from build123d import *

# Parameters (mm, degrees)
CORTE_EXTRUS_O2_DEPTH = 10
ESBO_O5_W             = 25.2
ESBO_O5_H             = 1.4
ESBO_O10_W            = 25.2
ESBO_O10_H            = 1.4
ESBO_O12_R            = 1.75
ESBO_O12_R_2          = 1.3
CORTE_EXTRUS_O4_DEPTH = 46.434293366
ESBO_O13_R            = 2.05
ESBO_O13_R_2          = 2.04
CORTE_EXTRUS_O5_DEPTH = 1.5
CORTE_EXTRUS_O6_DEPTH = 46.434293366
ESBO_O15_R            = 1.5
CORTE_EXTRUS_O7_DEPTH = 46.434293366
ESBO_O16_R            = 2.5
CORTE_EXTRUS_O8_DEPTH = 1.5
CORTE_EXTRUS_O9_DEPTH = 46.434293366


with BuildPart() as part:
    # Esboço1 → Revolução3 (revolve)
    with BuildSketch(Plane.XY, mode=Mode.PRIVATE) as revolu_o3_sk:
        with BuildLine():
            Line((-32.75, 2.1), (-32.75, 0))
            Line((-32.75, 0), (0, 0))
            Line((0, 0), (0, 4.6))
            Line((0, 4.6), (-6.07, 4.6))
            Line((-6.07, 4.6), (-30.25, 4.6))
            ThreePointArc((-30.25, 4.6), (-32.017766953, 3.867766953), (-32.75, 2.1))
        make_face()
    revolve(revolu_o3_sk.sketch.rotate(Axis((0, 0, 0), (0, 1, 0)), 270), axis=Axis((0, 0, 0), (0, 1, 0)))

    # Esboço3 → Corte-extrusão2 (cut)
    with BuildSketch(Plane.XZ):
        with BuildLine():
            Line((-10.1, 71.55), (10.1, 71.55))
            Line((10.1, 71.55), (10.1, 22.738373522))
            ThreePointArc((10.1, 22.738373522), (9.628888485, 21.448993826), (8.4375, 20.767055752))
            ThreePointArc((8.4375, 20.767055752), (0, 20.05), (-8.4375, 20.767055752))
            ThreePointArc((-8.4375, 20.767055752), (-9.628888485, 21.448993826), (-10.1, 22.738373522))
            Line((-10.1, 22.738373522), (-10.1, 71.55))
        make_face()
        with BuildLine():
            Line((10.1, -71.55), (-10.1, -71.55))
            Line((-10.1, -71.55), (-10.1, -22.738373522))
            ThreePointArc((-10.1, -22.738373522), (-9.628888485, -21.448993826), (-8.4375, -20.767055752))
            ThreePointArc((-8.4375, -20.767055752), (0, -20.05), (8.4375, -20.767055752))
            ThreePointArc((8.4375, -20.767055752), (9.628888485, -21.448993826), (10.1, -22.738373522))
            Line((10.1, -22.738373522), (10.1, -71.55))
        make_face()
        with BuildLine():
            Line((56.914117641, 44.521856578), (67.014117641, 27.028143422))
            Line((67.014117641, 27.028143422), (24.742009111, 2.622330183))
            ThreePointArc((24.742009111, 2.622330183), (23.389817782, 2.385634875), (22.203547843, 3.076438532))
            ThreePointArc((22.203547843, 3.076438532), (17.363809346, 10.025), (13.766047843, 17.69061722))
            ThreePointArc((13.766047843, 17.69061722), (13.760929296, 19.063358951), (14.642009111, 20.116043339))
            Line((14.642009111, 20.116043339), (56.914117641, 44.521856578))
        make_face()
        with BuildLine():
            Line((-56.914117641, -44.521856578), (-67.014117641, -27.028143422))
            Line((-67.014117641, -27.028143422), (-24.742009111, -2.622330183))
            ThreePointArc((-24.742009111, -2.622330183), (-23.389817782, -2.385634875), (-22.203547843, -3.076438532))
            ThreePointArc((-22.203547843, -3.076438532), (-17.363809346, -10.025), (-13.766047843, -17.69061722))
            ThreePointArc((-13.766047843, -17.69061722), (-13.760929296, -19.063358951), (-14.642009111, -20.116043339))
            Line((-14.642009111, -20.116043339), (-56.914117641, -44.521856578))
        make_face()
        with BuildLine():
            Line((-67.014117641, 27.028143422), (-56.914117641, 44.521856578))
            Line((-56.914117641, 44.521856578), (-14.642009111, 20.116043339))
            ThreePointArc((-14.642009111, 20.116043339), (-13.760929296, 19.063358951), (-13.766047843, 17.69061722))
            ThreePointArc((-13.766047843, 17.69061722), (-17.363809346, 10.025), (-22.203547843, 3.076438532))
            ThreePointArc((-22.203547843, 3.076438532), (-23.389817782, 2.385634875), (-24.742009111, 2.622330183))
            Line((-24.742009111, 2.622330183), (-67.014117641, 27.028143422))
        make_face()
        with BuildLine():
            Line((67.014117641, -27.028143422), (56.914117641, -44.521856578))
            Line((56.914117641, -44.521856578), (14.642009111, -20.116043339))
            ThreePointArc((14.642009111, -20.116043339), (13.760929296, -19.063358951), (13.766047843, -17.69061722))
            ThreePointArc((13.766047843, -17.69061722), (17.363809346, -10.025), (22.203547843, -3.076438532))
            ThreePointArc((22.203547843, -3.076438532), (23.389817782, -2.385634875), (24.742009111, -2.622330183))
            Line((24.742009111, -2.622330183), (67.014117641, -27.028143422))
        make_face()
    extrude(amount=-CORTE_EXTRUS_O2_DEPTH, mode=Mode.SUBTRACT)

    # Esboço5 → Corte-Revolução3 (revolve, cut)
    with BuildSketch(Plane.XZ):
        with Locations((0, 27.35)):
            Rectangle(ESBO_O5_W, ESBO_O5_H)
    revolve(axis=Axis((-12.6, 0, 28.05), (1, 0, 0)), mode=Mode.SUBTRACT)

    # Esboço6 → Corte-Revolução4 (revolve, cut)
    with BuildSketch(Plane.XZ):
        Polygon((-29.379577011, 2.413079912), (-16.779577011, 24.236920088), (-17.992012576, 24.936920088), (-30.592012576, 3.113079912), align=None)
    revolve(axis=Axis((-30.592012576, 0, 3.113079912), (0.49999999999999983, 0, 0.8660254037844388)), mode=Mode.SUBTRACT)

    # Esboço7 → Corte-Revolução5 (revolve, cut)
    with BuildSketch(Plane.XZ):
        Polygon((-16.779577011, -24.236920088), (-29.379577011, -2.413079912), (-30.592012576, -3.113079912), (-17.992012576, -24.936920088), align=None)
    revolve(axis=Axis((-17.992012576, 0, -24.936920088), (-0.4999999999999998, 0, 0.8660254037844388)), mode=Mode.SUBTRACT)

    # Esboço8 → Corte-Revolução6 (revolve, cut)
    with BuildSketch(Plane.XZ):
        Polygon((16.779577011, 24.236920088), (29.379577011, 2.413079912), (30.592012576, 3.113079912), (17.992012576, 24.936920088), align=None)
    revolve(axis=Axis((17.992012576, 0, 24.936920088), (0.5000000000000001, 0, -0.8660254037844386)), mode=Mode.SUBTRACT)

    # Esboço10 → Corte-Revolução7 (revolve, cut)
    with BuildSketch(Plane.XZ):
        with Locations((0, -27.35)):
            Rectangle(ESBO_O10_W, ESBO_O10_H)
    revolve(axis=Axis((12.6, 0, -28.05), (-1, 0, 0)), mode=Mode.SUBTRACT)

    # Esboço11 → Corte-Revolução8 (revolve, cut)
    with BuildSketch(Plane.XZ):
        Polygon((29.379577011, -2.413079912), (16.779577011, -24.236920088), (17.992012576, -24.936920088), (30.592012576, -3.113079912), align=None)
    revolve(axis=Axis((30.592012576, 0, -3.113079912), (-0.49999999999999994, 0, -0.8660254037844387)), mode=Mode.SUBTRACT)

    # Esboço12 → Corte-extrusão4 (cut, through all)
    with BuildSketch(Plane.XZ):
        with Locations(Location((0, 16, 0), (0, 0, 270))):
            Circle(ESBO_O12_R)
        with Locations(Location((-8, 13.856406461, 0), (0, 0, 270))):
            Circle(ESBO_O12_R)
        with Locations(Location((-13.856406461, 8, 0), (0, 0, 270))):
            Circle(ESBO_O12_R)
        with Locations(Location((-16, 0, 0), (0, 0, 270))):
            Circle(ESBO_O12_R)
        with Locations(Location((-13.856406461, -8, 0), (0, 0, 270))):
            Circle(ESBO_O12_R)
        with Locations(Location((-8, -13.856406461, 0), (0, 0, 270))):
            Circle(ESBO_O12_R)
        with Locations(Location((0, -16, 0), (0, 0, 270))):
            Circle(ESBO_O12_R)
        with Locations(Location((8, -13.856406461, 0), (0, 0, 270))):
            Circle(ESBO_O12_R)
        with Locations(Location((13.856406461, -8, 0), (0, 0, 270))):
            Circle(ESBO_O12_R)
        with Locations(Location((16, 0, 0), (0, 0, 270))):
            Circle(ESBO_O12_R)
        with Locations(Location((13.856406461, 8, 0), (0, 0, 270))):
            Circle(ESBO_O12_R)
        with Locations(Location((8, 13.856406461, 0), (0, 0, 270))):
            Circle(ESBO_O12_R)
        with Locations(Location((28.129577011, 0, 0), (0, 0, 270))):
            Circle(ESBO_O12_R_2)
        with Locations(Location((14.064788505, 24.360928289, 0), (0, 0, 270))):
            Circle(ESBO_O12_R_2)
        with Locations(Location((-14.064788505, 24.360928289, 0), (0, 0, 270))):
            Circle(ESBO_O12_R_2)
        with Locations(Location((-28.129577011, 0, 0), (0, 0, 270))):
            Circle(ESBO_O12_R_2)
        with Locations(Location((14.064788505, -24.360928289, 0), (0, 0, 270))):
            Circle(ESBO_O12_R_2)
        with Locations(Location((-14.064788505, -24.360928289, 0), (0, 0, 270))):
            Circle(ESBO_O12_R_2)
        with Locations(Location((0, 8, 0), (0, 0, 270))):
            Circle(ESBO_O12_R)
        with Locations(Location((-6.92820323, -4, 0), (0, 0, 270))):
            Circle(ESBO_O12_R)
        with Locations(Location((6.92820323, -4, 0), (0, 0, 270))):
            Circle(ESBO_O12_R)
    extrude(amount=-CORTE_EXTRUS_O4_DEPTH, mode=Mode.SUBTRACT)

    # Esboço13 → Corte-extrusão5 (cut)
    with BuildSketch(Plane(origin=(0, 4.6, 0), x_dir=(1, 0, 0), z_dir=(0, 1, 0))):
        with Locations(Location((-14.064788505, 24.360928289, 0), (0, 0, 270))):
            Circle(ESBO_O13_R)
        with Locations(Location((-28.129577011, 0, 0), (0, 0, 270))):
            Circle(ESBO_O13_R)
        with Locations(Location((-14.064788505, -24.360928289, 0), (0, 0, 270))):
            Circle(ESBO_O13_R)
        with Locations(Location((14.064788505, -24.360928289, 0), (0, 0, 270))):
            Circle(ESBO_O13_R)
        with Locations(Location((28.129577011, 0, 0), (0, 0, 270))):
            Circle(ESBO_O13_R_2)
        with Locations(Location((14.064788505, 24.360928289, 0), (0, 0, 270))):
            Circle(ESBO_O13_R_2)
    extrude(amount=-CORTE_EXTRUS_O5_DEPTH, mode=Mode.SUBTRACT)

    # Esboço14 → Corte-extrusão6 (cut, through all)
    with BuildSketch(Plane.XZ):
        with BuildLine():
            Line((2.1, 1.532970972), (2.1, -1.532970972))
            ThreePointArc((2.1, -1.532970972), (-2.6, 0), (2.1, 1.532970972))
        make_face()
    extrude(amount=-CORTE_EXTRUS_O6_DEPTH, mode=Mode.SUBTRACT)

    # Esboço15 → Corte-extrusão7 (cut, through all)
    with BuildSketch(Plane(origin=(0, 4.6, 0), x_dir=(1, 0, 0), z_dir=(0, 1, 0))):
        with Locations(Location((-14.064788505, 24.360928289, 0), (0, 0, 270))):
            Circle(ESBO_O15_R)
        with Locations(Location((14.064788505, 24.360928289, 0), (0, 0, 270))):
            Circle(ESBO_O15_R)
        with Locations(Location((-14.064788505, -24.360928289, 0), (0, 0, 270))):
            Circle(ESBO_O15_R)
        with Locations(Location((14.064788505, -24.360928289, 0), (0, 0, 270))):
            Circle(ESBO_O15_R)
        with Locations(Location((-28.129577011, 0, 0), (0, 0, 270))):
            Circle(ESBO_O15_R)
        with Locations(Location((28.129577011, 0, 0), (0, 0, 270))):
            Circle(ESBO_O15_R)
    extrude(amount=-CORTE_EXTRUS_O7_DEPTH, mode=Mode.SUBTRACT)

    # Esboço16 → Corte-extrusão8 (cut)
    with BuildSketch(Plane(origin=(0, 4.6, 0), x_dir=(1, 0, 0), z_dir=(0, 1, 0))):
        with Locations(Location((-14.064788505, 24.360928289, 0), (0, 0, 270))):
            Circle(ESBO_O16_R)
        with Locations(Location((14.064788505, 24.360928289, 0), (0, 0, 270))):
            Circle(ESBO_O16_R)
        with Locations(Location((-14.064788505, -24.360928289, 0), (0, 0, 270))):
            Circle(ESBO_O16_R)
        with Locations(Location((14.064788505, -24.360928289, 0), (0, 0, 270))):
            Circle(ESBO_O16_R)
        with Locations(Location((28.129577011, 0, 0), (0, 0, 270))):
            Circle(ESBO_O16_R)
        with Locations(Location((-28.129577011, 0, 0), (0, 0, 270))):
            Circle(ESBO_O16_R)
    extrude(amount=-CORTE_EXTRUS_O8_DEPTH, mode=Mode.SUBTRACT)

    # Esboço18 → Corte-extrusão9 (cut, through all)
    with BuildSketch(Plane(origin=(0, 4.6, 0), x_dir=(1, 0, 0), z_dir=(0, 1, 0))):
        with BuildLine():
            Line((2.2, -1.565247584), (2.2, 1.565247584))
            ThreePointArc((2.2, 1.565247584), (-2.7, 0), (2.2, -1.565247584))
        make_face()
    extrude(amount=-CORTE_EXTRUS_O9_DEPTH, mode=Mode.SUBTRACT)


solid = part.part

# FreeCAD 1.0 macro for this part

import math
import FreeCAD as App
import Part
import Sketcher
from FreeCAD import Vector
Q = App.Units.Quantity

doc = App.newDocument("Part")
body = doc.addObject("PartDesign::Body", "Body")

sketch1 = doc.addObject("Sketcher::SketchObject", "Sketch")
body.addObject(sketch1)
sketch1.AttachmentSupport = (doc.XY_Plane, [""])
sketch1.MapMode = "FlatFace"
sketch1.addGeometry(Part.LineSegment(Vector(-32.75, 2.1, 0), Vector(-32.75, 0, 0)), False)
sketch1.addGeometry(Part.LineSegment(Vector(-32.75, 0, 0), Vector(0, 0, 0)), False)
sketch1.addGeometry(Part.LineSegment(Vector(0, 0, 0), Vector(0, 4.6, 0)), False)
sketch1.addGeometry(Part.LineSegment(Vector(0, 4.6, 0), Vector(-30.25, 4.6, 0)), False)
sketch1.addGeometry(Part.ArcOfCircle(Part.Circle(Vector(-30.25, 2.1, 0), Vector(0, 0, 1), 2.5), math.radians(90), math.radians(180)), False)
sketch1.addConstraint(Sketcher.Constraint("Coincident", 0, 2, 1, 1))
sketch1.addConstraint(Sketcher.Constraint("Coincident", 1, 2, 2, 1))
sketch1.addConstraint(Sketcher.Constraint("Coincident", 2, 2, 3, 1))
sketch1.addConstraint(Sketcher.Constraint("Tangent", 3, 2, 4, 1))
sketch1.addConstraint(Sketcher.Constraint("Tangent", 4, 2, 0, 1))
sketch1.addConstraint(Sketcher.Constraint("Vertical", 0))
sketch1.addConstraint(Sketcher.Constraint("Horizontal", 1))
sketch1.addConstraint(Sketcher.Constraint("Vertical", 2))
sketch1.addConstraint(Sketcher.Constraint("Horizontal", 3))
sketch1.addConstraint(Sketcher.Constraint("Coincident", 1, 2, -1, 1))
sketch1.addConstraint(Sketcher.Constraint("Radius", 4, Q("2.5 mm")))
sketch1.addConstraint(Sketcher.Constraint("DistanceY", 0, 2, 0, 1, Q("2.1 mm")))
sketch1.addConstraint(Sketcher.Constraint("DistanceX", 1, 1, 1, 2, Q("32.75 mm")))
revolution = doc.addObject("PartDesign::Revolution", "Revolution")
body.addObject(revolution)
revolution.Profile = sketch1
revolution.ReferenceAxis = (sketch1, ["V_Axis"])
revolution.Angle = 360

sketch2 = doc.addObject("Sketcher::SketchObject", "Sketch001")
body.addObject(sketch2)
sketch2.AttachmentSupport = (doc.XZ_Plane, [""])
sketch2.MapMode = "FlatFace"
sketch2.addGeometry(Part.LineSegment(Vector(10.1, 71.55, 0), Vector(-10.1, 71.55, 0)), False)
sketch2.addGeometry(Part.LineSegment(Vector(-10.1, 71.55, 0), Vector(-10.1, 22.738374, 0)), False)
sketch2.addGeometry(Part.ArcOfCircle(Part.Circle(Vector(-8.1, 22.738374, 0), Vector(0, 0, 1), 2), math.radians(180), math.radians(260.284851)), False)
sketch2.addGeometry(Part.ArcOfCircle(Part.Circle(Vector(0, 70.05, 0), Vector(0, 0, 1), 50), math.radians(-99.715149), math.radians(-80.284851)), False)
sketch2.addGeometry(Part.ArcOfCircle(Part.Circle(Vector(8.1, 22.738374, 0), Vector(0, 0, 1), 2), math.radians(-80.284851), math.radians(0)), False)
sketch2.addGeometry(Part.LineSegment(Vector(10.1, 22.738374, 0), Vector(10.1, 71.55, 0)), False)
sketch2.addGeometry(Part.LineSegment(Vector(-10.1, -71.55, 0), Vector(10.1, -71.55, 0)), False)
sketch2.addGeometry(Part.LineSegment(Vector(10.1, -71.55, 0), Vector(10.1, -22.738374, 0)), False)
sketch2.addGeometry(Part.ArcOfCircle(Part.Circle(Vector(8.1, -22.738374, 0), Vector(0, 0, 1), 2), math.radians(0), math.radians(80.284851)), False)
sketch2.addGeometry(Part.ArcOfCircle(Part.Circle(Vector(0, -70.05, 0), Vector(0, 0, 1), 50), math.radians(80.284851), math.radians(99.715149)), False)
sketch2.addGeometry(Part.ArcOfCircle(Part.Circle(Vector(-8.1, -22.738374, 0), Vector(0, 0, 1), 2), math.radians(99.715149), math.radians(180)), False)
sketch2.addGeometry(Part.LineSegment(Vector(-10.1, -22.738374, 0), Vector(-10.1, -71.55, 0)), False)
sketch2.addGeometry(Part.LineSegment(Vector(67.014118, 27.028143, 0), Vector(56.914118, 44.521857, 0)), False)
sketch2.addGeometry(Part.LineSegment(Vector(56.914118, 44.521857, 0), Vector(14.642009, 20.116043, 0)), False)
sketch2.addGeometry(Part.ArcOfCircle(Part.Circle(Vector(15.642009, 18.383993, 0), Vector(0, 0, 1), 2), math.radians(120), math.radians(200.284851)), False)
sketch2.addGeometry(Part.ArcOfCircle(Part.Circle(Vector(60.66508, 35.025, 0), Vector(0, 0, 1), 50), math.radians(-159.715149), math.radians(-140.284851)), False)
sketch2.addGeometry(Part.ArcOfCircle(Part.Circle(Vector(23.742009, 4.354381, 0), Vector(0, 0, 1), 2), math.radians(-140.284851), math.radians(-60)), False)
sketch2.addGeometry(Part.LineSegment(Vector(24.742009, 2.62233, 0), Vector(67.014118, 27.028143, 0)), False)
sketch2.addGeometry(Part.LineSegment(Vector(-67.014118, -27.028143, 0), Vector(-56.914118, -44.521857, 0)), False)
sketch2.addGeometry(Part.LineSegment(Vector(-56.914118, -44.521857, 0), Vector(-14.642009, -20.116043, 0)), False)
sketch2.addGeometry(Part.ArcOfCircle(Part.Circle(Vector(-15.642009, -18.383993, 0), Vector(0, 0, 1), 2), math.radians(-60), math.radians(20.284851)), False)
sketch2.addGeometry(Part.ArcOfCircle(Part.Circle(Vector(-60.66508, -35.025, 0), Vector(0, 0, 1), 50), math.radians(20.284851), math.radians(39.715149)), False)
sketch2.addGeometry(Part.ArcOfCircle(Part.Circle(Vector(-23.742009, -4.354381, 0), Vector(0, 0, 1), 2), math.radians(39.715149), math.radians(120)), False)
sketch2.addGeometry(Part.LineSegment(Vector(-24.742009, -2.62233, 0), Vector(-67.014118, -27.028143, 0)), False)
sketch2.addGeometry(Part.LineSegment(Vector(-56.914118, 44.521857, 0), Vector(-67.014118, 27.028143, 0)), False)
sketch2.addGeometry(Part.LineSegment(Vector(-67.014118, 27.028143, 0), Vector(-24.742009, 2.62233, 0)), False)
sketch2.addGeometry(Part.ArcOfCircle(Part.Circle(Vector(-23.742009, 4.354381, 0), Vector(0, 0, 1), 2), math.radians(-120), math.radians(-39.715149)), False)
sketch2.addGeometry(Part.ArcOfCircle(Part.Circle(Vector(-60.66508, 35.025, 0), Vector(0, 0, 1), 50), math.radians(-39.715149), math.radians(-20.284851)), False)
sketch2.addGeometry(Part.ArcOfCircle(Part.Circle(Vector(-15.642009, 18.383993, 0), Vector(0, 0, 1), 2), math.radians(-20.284851), math.radians(60)), False)
sketch2.addGeometry(Part.LineSegment(Vector(-14.642009, 20.116043, 0), Vector(-56.914118, 44.521857, 0)), False)
sketch2.addGeometry(Part.LineSegment(Vector(56.914118, -44.521857, 0), Vector(67.014118, -27.028143, 0)), False)
sketch2.addGeometry(Part.LineSegment(Vector(67.014118, -27.028143, 0), Vector(24.742009, -2.62233, 0)), False)
sketch2.addGeometry(Part.ArcOfCircle(Part.Circle(Vector(23.742009, -4.354381, 0), Vector(0, 0, 1), 2), math.radians(60), math.radians(140.284851)), False)
sketch2.addGeometry(Part.ArcOfCircle(Part.Circle(Vector(60.66508, -35.025, 0), Vector(0, 0, 1), 50), math.radians(140.284851), math.radians(159.715149)), False)
sketch2.addGeometry(Part.ArcOfCircle(Part.Circle(Vector(15.642009, -18.383993, 0), Vector(0, 0, 1), 2), math.radians(159.715149), math.radians(240)), False)
sketch2.addGeometry(Part.LineSegment(Vector(14.642009, -20.116043, 0), Vector(56.914118, -44.521857, 0)), False)
sketch2.addConstraint(Sketcher.Constraint("Coincident", 0, 2, 1, 1))
sketch2.addConstraint(Sketcher.Constraint("Tangent", 1, 2, 2, 1))
sketch2.addConstraint(Sketcher.Constraint("Tangent", 2, 2, 3, 1))
sketch2.addConstraint(Sketcher.Constraint("Tangent", 3, 2, 4, 1))
sketch2.addConstraint(Sketcher.Constraint("Tangent", 4, 2, 5, 1))
sketch2.addConstraint(Sketcher.Constraint("Coincident", 5, 2, 0, 1))
sketch2.addConstraint(Sketcher.Constraint("Coincident", 6, 2, 7, 1))
sketch2.addConstraint(Sketcher.Constraint("Tangent", 7, 2, 8, 1))
sketch2.addConstraint(Sketcher.Constraint("Tangent", 8, 2, 9, 1))
sketch2.addConstraint(Sketcher.Constraint("Tangent", 9, 2, 10, 1))
sketch2.addConstraint(Sketcher.Constraint("Tangent", 10, 2, 11, 1))
sketch2.addConstraint(Sketcher.Constraint("Coincident", 11, 2, 6, 1))
sketch2.addConstraint(Sketcher.Constraint("Coincident", 12, 2, 13, 1))
sketch2.addConstraint(Sketcher.Constraint("Tangent", 13, 2, 14, 1))
sketch2.addConstraint(Sketcher.Constraint("Tangent", 14, 2, 15, 1))
sketch2.addConstraint(Sketcher.Constraint("Tangent", 15, 2, 16, 1))
sketch2.addConstraint(Sketcher.Constraint("Tangent", 16, 2, 17, 1))
sketch2.addConstraint(Sketcher.Constraint("Coincident", 17, 2, 12, 1))
sketch2.addConstraint(Sketcher.Constraint("Coincident", 18, 2, 19, 1))
sketch2.addConstraint(Sketcher.Constraint("Tangent", 19, 2, 20, 1))
sketch2.addConstraint(Sketcher.Constraint("Tangent", 20, 2, 21, 1))
sketch2.addConstraint(Sketcher.Constraint("Tangent", 21, 2, 22, 1))
sketch2.addConstraint(Sketcher.Constraint("Tangent", 22, 2, 23, 1))
sketch2.addConstraint(Sketcher.Constraint("Coincident", 23, 2, 18, 1))
sketch2.addConstraint(Sketcher.Constraint("Coincident", 24, 2, 25, 1))
sketch2.addConstraint(Sketcher.Constraint("Tangent", 25, 2, 26, 1))
sketch2.addConstraint(Sketcher.Constraint("Tangent", 26, 2, 27, 1))
sketch2.addConstraint(Sketcher.Constraint("Tangent", 27, 2, 28, 1))
sketch2.addConstraint(Sketcher.Constraint("Tangent", 28, 2, 29, 1))
sketch2.addConstraint(Sketcher.Constraint("Coincident", 29, 2, 24, 1))
sketch2.addConstraint(Sketcher.Constraint("Coincident", 30, 2, 31, 1))
sketch2.addConstraint(Sketcher.Constraint("Tangent", 31, 2, 32, 1))
sketch2.addConstraint(Sketcher.Constraint("Tangent", 32, 2, 33, 1))
sketch2.addConstraint(Sketcher.Constraint("Tangent", 33, 2, 34, 1))
sketch2.addConstraint(Sketcher.Constraint("Tangent", 34, 2, 35, 1))
sketch2.addConstraint(Sketcher.Constraint("Coincident", 35, 2, 30, 1))
sketch2.addConstraint(Sketcher.Constraint("Horizontal", 0))
sketch2.addConstraint(Sketcher.Constraint("Vertical", 1))
sketch2.addConstraint(Sketcher.Constraint("Vertical", 5))
sketch2.addConstraint(Sketcher.Constraint("Horizontal", 6))
sketch2.addConstraint(Sketcher.Constraint("Vertical", 7))
sketch2.addConstraint(Sketcher.Constraint("Vertical", 11))
sketch2.addConstraint(Sketcher.Constraint("Equal", 2, 4))
sketch2.addConstraint(Sketcher.Constraint("Equal", 4, 8))
sketch2.addConstraint(Sketcher.Constraint("Equal", 3, 9))
sketch2.addConstraint(Sketcher.Constraint("Equal", 8, 10))
sketch2.addConstraint(Sketcher.Constraint("Equal", 10, 14))
sketch2.addConstraint(Sketcher.Constraint("Equal", 9, 15))
sketch2.addConstraint(Sketcher.Constraint("Equal", 14, 16))
sketch2.addConstraint(Sketcher.Constraint("Equal", 16, 20))
sketch2.addConstraint(Sketcher.Constraint("Equal", 15, 21))
sketch2.addConstraint(Sketcher.Constraint("Equal", 20, 22))
sketch2.addConstraint(Sketcher.Constraint("Equal", 22, 26))
sketch2.addConstraint(Sketcher.Constraint("Equal", 21, 27))
sketch2.addConstraint(Sketcher.Constraint("Equal", 26, 28))
sketch2.addConstraint(Sketcher.Constraint("Equal", 28, 32))
sketch2.addConstraint(Sketcher.Constraint("Equal", 27, 33))
sketch2.addConstraint(Sketcher.Constraint("Equal", 32, 34))
sketch2.addConstraint(Sketcher.Constraint("Symmetric", 2, 3, 8, 3, -1, 1))
sketch2.addConstraint(Sketcher.Constraint("Symmetric", 4, 3, 10, 3, -1, 1))
sketch2.addConstraint(Sketcher.Constraint("Symmetric", 14, 3, 20, 3, -1, 1))
sketch2.addConstraint(Sketcher.Constraint("Symmetric", 16, 3, 22, 3, -1, 1))
sketch2.addConstraint(Sketcher.Constraint("Symmetric", 26, 3, 32, 3, -1, 1))
sketch2.addConstraint(Sketcher.Constraint("Symmetric", 28, 3, 34, 3, -1, 1))
sketch2.addConstraint(Sketcher.Constraint("Symmetric", 12, 2, 18, 2, -1, 1))
sketch2.addConstraint(Sketcher.Constraint("Symmetric", 17, 2, 23, 2, -1, 1))
sketch2.addConstraint(Sketcher.Constraint("Symmetric", 24, 2, 30, 2, -1, 1))
sketch2.addConstraint(Sketcher.Constraint("Symmetric", 29, 2, 35, 2, -1, 1))
sketch2.addConstraint(Sketcher.Constraint("Symmetric", 2, 3, 4, 3, -2))
sketch2.addConstraint(Sketcher.Constraint("Symmetric", 16, 3, 26, 3, -2))
sketch2.addConstraint(Sketcher.Constraint("Symmetric", 14, 3, 28, 3, -2))
sketch2.addConstraint(Sketcher.Constraint("Symmetric", 17, 2, 24, 2, -2))
sketch2.addConstraint(Sketcher.Constraint("Symmetric", 12, 2, 29, 2, -2))
sketch2.addConstraint(Sketcher.Constraint("Perpendicular", 12, 13))
sketch2.addConstraint(Sketcher.Constraint("Parallel", 13, 17))
sketch2.addConstraint(Sketcher.Constraint("Equal", 5, 7))
sketch2.addConstraint(Sketcher.Constraint("Equal", 13, 17))
sketch2.addConstraint(Sketcher.Constraint("Radius", 2, Q("2 mm")))
sketch2.addConstraint(Sketcher.Constraint("Radius", 3, Q("50 mm")))
sketch2.addConstraint(Sketcher.Constraint("Angle", 12, Q("120 deg")))
sketch2.addConstraint(Sketcher.Constraint("DistanceX", 0, 2, 0, 1, Q("20.2 mm")))
sketch2.addConstraint(Sketcher.Constraint("Distance", 12, Q("20.2 mm")))
sketch2.addConstraint(Sketcher.Constraint("DistanceY", 9, 3, 3, 3, Q("140.1 mm")))
sketch2.addConstraint(Sketcher.Constraint("DistanceY", 3, 3, 0, 2, Q("1.5 mm")))
sketch2.addConstraint(Sketcher.Constraint("DistanceY", -1, 1, 15, 3, Q("35.025 mm")))
sketch2.addConstraint(Sketcher.Constraint("DistanceX", -1, 1, 14, 3, Q("15.642009 mm")))
sketch2.addConstraint(Sketcher.Constraint("DistanceX", 12, 2, 15, 3, Q("3.750962 mm")))
pocket1 = doc.addObject("PartDesign::Pocket", "Pocket")
body.addObject(pocket1)
pocket1.Profile = sketch2
pocket1.Length = 10

sketch3 = doc.addObject("Sketcher::SketchObject", "Sketch002")
body.addObject(sketch3)
sketch3.AttachmentSupport = (doc.XZ_Plane, [""])
sketch3.MapMode = "FlatFace"
sketch3.addGeometry(Part.LineSegment(Vector(-12.6, 28.05, 0), Vector(-12.6, 26.65, 0)), False)
sketch3.addGeometry(Part.LineSegment(Vector(-12.6, 26.65, 0), Vector(12.6, 26.65, 0)), False)
sketch3.addGeometry(Part.LineSegment(Vector(12.6, 26.65, 0), Vector(12.6, 28.05, 0)), False)
sketch3.addGeometry(Part.LineSegment(Vector(12.6, 28.05, 0), Vector(-12.6, 28.05, 0)), False)
sketch3.addGeometry(Part.LineSegment(Vector(-12.6, 28.05, 0), Vector(12.6, 28.05, 0)), True)
sketch3.addConstraint(Sketcher.Constraint("Coincident", 0, 2, 1, 1))
sketch3.addConstraint(Sketcher.Constraint("Coincident", 1, 2, 2, 1))
sketch3.addConstraint(Sketcher.Constraint("Coincident", 2, 2, 3, 1))
sketch3.addConstraint(Sketcher.Constraint("Coincident", 3, 2, 0, 1))
sketch3.addConstraint(Sketcher.Constraint("Vertical", 0))
sketch3.addConstraint(Sketcher.Constraint("Horizontal", 1))
sketch3.addConstraint(Sketcher.Constraint("Vertical", 2))
sketch3.addConstraint(Sketcher.Constraint("Horizontal", 3))
sketch3.addConstraint(Sketcher.Constraint("Horizontal", 4))
sketch3.addConstraint(Sketcher.Constraint("Coincident", 4, 1, 3, 2))
sketch3.addConstraint(Sketcher.Constraint("Vertical", 1, 2, 4, 2))
sketch3.addConstraint(Sketcher.Constraint("DistanceX", 1, 1, 1, 2, Q("25.2 mm")))
sketch3.addConstraint(Sketcher.Constraint("DistanceY", 0, 2, 0, 1, Q("1.4 mm")))
sketch3.addConstraint(Sketcher.Constraint("DistanceX", 0, 2, -1, 1, Q("12.6 mm")))
sketch3.addConstraint(Sketcher.Constraint("DistanceY", -1, 1, 0, 2, Q("26.65 mm")))
groove = doc.addObject("PartDesign::Groove", "Groove")
body.addObject(groove)
groove.Profile = sketch3
groove.ReferenceAxis = (sketch3, ["Axis0"])
groove.Angle = 360

sketch4 = doc.addObject("Sketcher::SketchObject", "Sketch003")
body.addObject(sketch4)
sketch4.AttachmentSupport = (doc.XZ_Plane, [""])
sketch4.MapMode = "FlatFace"
sketch4.addGeometry(Part.LineSegment(Vector(-29.379577, 2.41308, 0), Vector(-16.779577, 24.23692, 0)), False)
sketch4.addGeometry(Part.LineSegment(Vector(-16.779577, 24.23692, 0), Vector(-17.992013, 24.93692, 0)), False)
sketch4.addGeometry(Part.LineSegment(Vector(-17.992013, 24.93692, 0), Vector(-30.592013, 3.11308, 0)), False)
sketch4.addGeometry(Part.LineSegment(Vector(-30.592013, 3.11308, 0), Vector(-29.379577, 2.41308, 0)), False)
sketch4.addGeometry(Part.LineSegment(Vector(-30.592013, 3.11308, 0), Vector(-17.992013, 24.93692, 0)), True)
sketch4.addConstraint(Sketcher.Constraint("Coincident", 0, 2, 1, 1))
sketch4.addConstraint(Sketcher.Constraint("Coincident", 1, 2, 2, 1))
sketch4.addConstraint(Sketcher.Constraint("Coincident", 2, 2, 3, 1))
sketch4.addConstraint(Sketcher.Constraint("Coincident", 3, 2, 0, 1))
sketch4.addConstraint(Sketcher.Constraint("Coincident", 4, 1, 2, 2))
sketch4.addConstraint(Sketcher.Constraint("Coincident", 4, 2, 1, 2))
sketch4.addConstraint(Sketcher.Constraint("Perpendicular", 0, 1))
sketch4.addConstraint(Sketcher.Constraint("Perpendicular", 1, 2))
sketch4.addConstraint(Sketcher.Constraint("Perpendicular", 2, 3))
sketch4.addConstraint(Sketcher.Constraint("Angle", 0, Q("60 deg")))
sketch4.addConstraint(Sketcher.Constraint("Distance", 0, Q("25.2 mm")))
sketch4.addConstraint(Sketcher.Constraint("Distance", 1, Q("1.4 mm")))
sketch4.addConstraint(Sketcher.Constraint("DistanceY", -1, 1, 0, 2, Q("24.23692 mm")))
sketch4.addConstraint(Sketcher.Constraint("DistanceX", 0, 2, -1, 1, Q("16.779577 mm")))
groove2 = doc.addObject("PartDesign::Groove", "Groove001")
body.addObject(groove2)
groove2.Profile = sketch4
groove2.ReferenceAxis = (sketch4, ["Axis0"])
groove2.Angle = 360

sketch5 = doc.addObject("Sketcher::SketchObject", "Sketch004")
body.addObject(sketch5)
sketch5.AttachmentSupport = (doc.XZ_Plane, [""])
sketch5.MapMode = "FlatFace"
sketch5.addGeometry(Part.LineSegment(Vector(-16.779577, -24.23692, 0), Vector(-29.379577, -2.41308, 0)), False)
sketch5.addGeometry(Part.LineSegment(Vector(-29.379577, -2.41308, 0), Vector(-30.592013, -3.11308, 0)), False)
sketch5.addGeometry(Part.LineSegment(Vector(-30.592013, -3.11308, 0), Vector(-17.992013, -24.93692, 0)), False)
sketch5.addGeometry(Part.LineSegment(Vector(-17.992013, -24.93692, 0), Vector(-16.779577, -24.23692, 0)), False)
sketch5.addGeometry(Part.LineSegment(Vector(-17.992013, -24.93692, 0), Vector(-30.592013, -3.11308, 0)), True)
sketch5.addConstraint(Sketcher.Constraint("Coincident", 0, 2, 1, 1))
sketch5.addConstraint(Sketcher.Constraint("Coincident", 1, 2, 2, 1))
sketch5.addConstraint(Sketcher.Constraint("Coincident", 2, 2, 3, 1))
sketch5.addConstraint(Sketcher.Constraint("Coincident", 3, 2, 0, 1))
sketch5.addConstraint(Sketcher.Constraint("Coincident", 4, 1, 2, 2))
sketch5.addConstraint(Sketcher.Constraint("Coincident", 4, 2, 1, 2))
sketch5.addConstraint(Sketcher.Constraint("Perpendicular", 0, 1))
sketch5.addConstraint(Sketcher.Constraint("Perpendicular", 1, 2))
sketch5.addConstraint(Sketcher.Constraint("Perpendicular", 2, 3))
sketch5.addConstraint(Sketcher.Constraint("Angle", 0, Q("120 deg")))
sketch5.addConstraint(Sketcher.Constraint("Distance", 0, Q("25.2 mm")))
sketch5.addConstraint(Sketcher.Constraint("Distance", 1, Q("1.4 mm")))
sketch5.addConstraint(Sketcher.Constraint("DistanceY", 0, 2, -1, 1, Q("2.41308 mm")))
sketch5.addConstraint(Sketcher.Constraint("DistanceX", 0, 2, -1, 1, Q("29.379577 mm")))
groove3 = doc.addObject("PartDesign::Groove", "Groove002")
body.addObject(groove3)
groove3.Profile = sketch5
groove3.ReferenceAxis = (sketch5, ["Axis0"])
groove3.Angle = 360

sketch6 = doc.addObject("Sketcher::SketchObject", "Sketch005")
body.addObject(sketch6)
sketch6.AttachmentSupport = (doc.XZ_Plane, [""])
sketch6.MapMode = "FlatFace"
sketch6.addGeometry(Part.LineSegment(Vector(16.779577, 24.23692, 0), Vector(29.379577, 2.41308, 0)), False)
sketch6.addGeometry(Part.LineSegment(Vector(29.379577, 2.41308, 0), Vector(30.592013, 3.11308, 0)), False)
sketch6.addGeometry(Part.LineSegment(Vector(30.592013, 3.11308, 0), Vector(17.992013, 24.93692, 0)), False)
sketch6.addGeometry(Part.LineSegment(Vector(17.992013, 24.93692, 0), Vector(16.779577, 24.23692, 0)), False)
sketch6.addGeometry(Part.LineSegment(Vector(17.992013, 24.93692, 0), Vector(30.592013, 3.11308, 0)), True)
sketch6.addConstraint(Sketcher.Constraint("Coincident", 0, 2, 1, 1))
sketch6.addConstraint(Sketcher.Constraint("Coincident", 1, 2, 2, 1))
sketch6.addConstraint(Sketcher.Constraint("Coincident", 2, 2, 3, 1))
sketch6.addConstraint(Sketcher.Constraint("Coincident", 3, 2, 0, 1))
sketch6.addConstraint(Sketcher.Constraint("Coincident", 4, 1, 2, 2))
sketch6.addConstraint(Sketcher.Constraint("Coincident", 4, 2, 1, 2))
sketch6.addConstraint(Sketcher.Constraint("Perpendicular", 0, 1))
sketch6.addConstraint(Sketcher.Constraint("Perpendicular", 1, 2))
sketch6.addConstraint(Sketcher.Constraint("Perpendicular", 2, 3))
sketch6.addConstraint(Sketcher.Constraint("Angle", 0, Q("-60 deg")))
sketch6.addConstraint(Sketcher.Constraint("Distance", 0, Q("25.2 mm")))
sketch6.addConstraint(Sketcher.Constraint("Distance", 1, Q("1.4 mm")))
sketch6.addConstraint(Sketcher.Constraint("DistanceY", -1, 1, 0, 2, Q("2.41308 mm")))
sketch6.addConstraint(Sketcher.Constraint("DistanceX", -1, 1, 0, 2, Q("29.379577 mm")))
groove4 = doc.addObject("PartDesign::Groove", "Groove003")
body.addObject(groove4)
groove4.Profile = sketch6
groove4.ReferenceAxis = (sketch6, ["Axis0"])
groove4.Angle = 360

sketch7 = doc.addObject("Sketcher::SketchObject", "Sketch006")
body.addObject(sketch7)
sketch7.AttachmentSupport = (doc.XZ_Plane, [""])
sketch7.MapMode = "FlatFace"
sketch7.addGeometry(Part.LineSegment(Vector(-12.6, -26.65, 0), Vector(-12.6, -28.05, 0)), False)
sketch7.addGeometry(Part.LineSegment(Vector(-12.6, -28.05, 0), Vector(12.6, -28.05, 0)), False)
sketch7.addGeometry(Part.LineSegment(Vector(12.6, -28.05, 0), Vector(12.6, -26.65, 0)), False)
sketch7.addGeometry(Part.LineSegment(Vector(12.6, -26.65, 0), Vector(-12.6, -26.65, 0)), False)
sketch7.addGeometry(Part.LineSegment(Vector(12.6, -28.05, 0), Vector(-12.6, -28.05, 0)), True)
sketch7.addConstraint(Sketcher.Constraint("Coincident", 0, 2, 1, 1))
sketch7.addConstraint(Sketcher.Constraint("Coincident", 1, 2, 2, 1))
sketch7.addConstraint(Sketcher.Constraint("Coincident", 2, 2, 3, 1))
sketch7.addConstraint(Sketcher.Constraint("Coincident", 3, 2, 0, 1))
sketch7.addConstraint(Sketcher.Constraint("Vertical", 0))
sketch7.addConstraint(Sketcher.Constraint("Horizontal", 1))
sketch7.addConstraint(Sketcher.Constraint("Vertical", 2))
sketch7.addConstraint(Sketcher.Constraint("Horizontal", 3))
sketch7.addConstraint(Sketcher.Constraint("Horizontal", 4))
sketch7.addConstraint(Sketcher.Constraint("Coincident", 4, 1, 1, 2))
sketch7.addConstraint(Sketcher.Constraint("Vertical", 3, 2, 4, 2))
sketch7.addConstraint(Sketcher.Constraint("DistanceX", 1, 1, 1, 2, Q("25.2 mm")))
sketch7.addConstraint(Sketcher.Constraint("DistanceY", 0, 2, 0, 1, Q("1.4 mm")))
sketch7.addConstraint(Sketcher.Constraint("DistanceX", 0, 2, -1, 1, Q("12.6 mm")))
sketch7.addConstraint(Sketcher.Constraint("DistanceY", 0, 2, -1, 1, Q("28.05 mm")))
groove5 = doc.addObject("PartDesign::Groove", "Groove004")
body.addObject(groove5)
groove5.Profile = sketch7
groove5.ReferenceAxis = (sketch7, ["Axis0"])
groove5.Angle = 360

sketch8 = doc.addObject("Sketcher::SketchObject", "Sketch007")
body.addObject(sketch8)
sketch8.AttachmentSupport = (doc.XZ_Plane, [""])
sketch8.MapMode = "FlatFace"
sketch8.addGeometry(Part.LineSegment(Vector(29.379577, -2.41308, 0), Vector(16.779577, -24.23692, 0)), False)
sketch8.addGeometry(Part.LineSegment(Vector(16.779577, -24.23692, 0), Vector(17.992013, -24.93692, 0)), False)
sketch8.addGeometry(Part.LineSegment(Vector(17.992013, -24.93692, 0), Vector(30.592013, -3.11308, 0)), False)
sketch8.addGeometry(Part.LineSegment(Vector(30.592013, -3.11308, 0), Vector(29.379577, -2.41308, 0)), False)
sketch8.addGeometry(Part.LineSegment(Vector(30.592013, -3.11308, 0), Vector(17.992013, -24.93692, 0)), True)
sketch8.addConstraint(Sketcher.Constraint("Coincident", 0, 2, 1, 1))
sketch8.addConstraint(Sketcher.Constraint("Coincident", 1, 2, 2, 1))
sketch8.addConstraint(Sketcher.Constraint("Coincident", 2, 2, 3, 1))
sketch8.addConstraint(Sketcher.Constraint("Coincident", 3, 2, 0, 1))
sketch8.addConstraint(Sketcher.Constraint("Coincident", 4, 1, 2, 2))
sketch8.addConstraint(Sketcher.Constraint("Coincident", 4, 2, 1, 2))
sketch8.addConstraint(Sketcher.Constraint("Perpendicular", 0, 1))
sketch8.addConstraint(Sketcher.Constraint("Perpendicular", 1, 2))
sketch8.addConstraint(Sketcher.Constraint("Perpendicular", 2, 3))
sketch8.addConstraint(Sketcher.Constraint("Angle", 0, Q("-120 deg")))
sketch8.addConstraint(Sketcher.Constraint("Distance", 0, Q("25.2 mm")))
sketch8.addConstraint(Sketcher.Constraint("Distance", 1, Q("1.4 mm")))
sketch8.addConstraint(Sketcher.Constraint("DistanceY", 0, 2, -1, 1, Q("24.23692 mm")))
sketch8.addConstraint(Sketcher.Constraint("DistanceX", -1, 1, 0, 2, Q("16.779577 mm")))
groove6 = doc.addObject("PartDesign::Groove", "Groove005")
body.addObject(groove6)
groove6.Profile = sketch8
groove6.ReferenceAxis = (sketch8, ["Axis0"])
groove6.Angle = 360

sketch9 = doc.addObject("Sketcher::SketchObject", "Sketch008")
body.addObject(sketch9)
sketch9.AttachmentSupport = (doc.XZ_Plane, [""])
sketch9.MapMode = "FlatFace"
sketch9.addGeometry(Part.Circle(Vector(0, 16, 0), Vector(0, 0, 1), 1.75), False)
sketch9.addGeometry(Part.Circle(Vector(-8, 13.856406, 0), Vector(0, 0, 1), 1.75), False)
sketch9.addGeometry(Part.Circle(Vector(-13.856406, 8, 0), Vector(0, 0, 1), 1.75), False)
sketch9.addGeometry(Part.Circle(Vector(-16, 0, 0), Vector(0, 0, 1), 1.75), False)
sketch9.addGeometry(Part.Circle(Vector(-13.856406, -8, 0), Vector(0, 0, 1), 1.75), False)
sketch9.addGeometry(Part.Circle(Vector(-8, -13.856406, 0), Vector(0, 0, 1), 1.75), False)
sketch9.addGeometry(Part.Circle(Vector(0, -16, 0), Vector(0, 0, 1), 1.75), False)
sketch9.addGeometry(Part.Circle(Vector(8, -13.856406, 0), Vector(0, 0, 1), 1.75), False)
sketch9.addGeometry(Part.Circle(Vector(13.856406, -8, 0), Vector(0, 0, 1), 1.75), False)
sketch9.addGeometry(Part.Circle(Vector(16, 0, 0), Vector(0, 0, 1), 1.75), False)
sketch9.addGeometry(Part.Circle(Vector(13.856406, 8, 0), Vector(0, 0, 1), 1.75), False)
sketch9.addGeometry(Part.Circle(Vector(8, 13.856406, 0), Vector(0, 0, 1), 1.75), False)
sketch9.addGeometry(Part.Circle(Vector(28.129577, 0, 0), Vector(0, 0, 1), 1.3), False)
sketch9.addGeometry(Part.Circle(Vector(14.064789, 24.360928, 0), Vector(0, 0, 1), 1.3), False)
sketch9.addGeometry(Part.Circle(Vector(-14.064789, 24.360928, 0), Vector(0, 0, 1), 1.3), False)
sketch9.addGeometry(Part.Circle(Vector(-28.129577, 0, 0), Vector(0, 0, 1), 1.3), False)
sketch9.addGeometry(Part.Circle(Vector(14.064789, -24.360928, 0), Vector(0, 0, 1), 1.3), False)
sketch9.addGeometry(Part.Circle(Vector(-14.064789, -24.360928, 0), Vector(0, 0, 1), 1.3), False)
sketch9.addGeometry(Part.Circle(Vector(0, 8, 0), Vector(0, 0, 1), 1.75), False)
sketch9.addGeometry(Part.Circle(Vector(-6.928203, -4, 0), Vector(0, 0, 1), 1.75), False)
sketch9.addGeometry(Part.Circle(Vector(6.928203, -4, 0), Vector(0, 0, 1), 1.75), False)
sketch9.addConstraint(Sketcher.Constraint("Equal", 0, 1))
sketch9.addConstraint(Sketcher.Constraint("Equal", 1, 2))
sketch9.addConstraint(Sketcher.Constraint("Equal", 2, 3))
sketch9.addConstraint(Sketcher.Constraint("Equal", 3, 4))
sketch9.addConstraint(Sketcher.Constraint("Equal", 4, 5))
sketch9.addConstraint(Sketcher.Constraint("Equal", 5, 6))
sketch9.addConstraint(Sketcher.Constraint("Equal", 6, 7))
sketch9.addConstraint(Sketcher.Constraint("Equal", 7, 8))
sketch9.addConstraint(Sketcher.Constraint("Equal", 8, 9))
sketch9.addConstraint(Sketcher.Constraint("Equal", 9, 10))
sketch9.addConstraint(Sketcher.Constraint("Equal", 10, 11))
sketch9.addConstraint(Sketcher.Constraint("Equal", 12, 13))
sketch9.addConstraint(Sketcher.Constraint("Equal", 13, 14))
sketch9.addConstraint(Sketcher.Constraint("Equal", 14, 15))
sketch9.addConstraint(Sketcher.Constraint("Equal", 15, 16))
sketch9.addConstraint(Sketcher.Constraint("Equal", 16, 17))
sketch9.addConstraint(Sketcher.Constraint("Equal", 11, 18))
sketch9.addConstraint(Sketcher.Constraint("Equal", 18, 19))
sketch9.addConstraint(Sketcher.Constraint("Equal", 19, 20))
sketch9.addConstraint(Sketcher.Constraint("Symmetric", 0, 3, 6, 3, -1, 1))
sketch9.addConstraint(Sketcher.Constraint("Symmetric", 1, 3, 7, 3, -1, 1))
sketch9.addConstraint(Sketcher.Constraint("Symmetric", 2, 3, 8, 3, -1, 1))
sketch9.addConstraint(Sketcher.Constraint("Symmetric", 3, 3, 9, 3, -1, 1))
sketch9.addConstraint(Sketcher.Constraint("Symmetric", 4, 3, 10, 3, -1, 1))
sketch9.addConstraint(Sketcher.Constraint("Symmetric", 5, 3, 11, 3, -1, 1))
sketch9.addConstraint(Sketcher.Constraint("Symmetric", 12, 3, 15, 3, -1, 1))
sketch9.addConstraint(Sketcher.Constraint("Symmetric", 14, 3, 16, 3, -1, 1))
sketch9.addConstraint(Sketcher.Constraint("Symmetric", 13, 3, 17, 3, -1, 1))
sketch9.addConstraint(Sketcher.Constraint("Symmetric", 5, 3, 7, 3, -2))
sketch9.addConstraint(Sketcher.Constraint("Symmetric", 4, 3, 8, 3, -2))
sketch9.addConstraint(Sketcher.Constraint("Symmetric", 13, 3, 14, 3, -2))
sketch9.addConstraint(Sketcher.Constraint("Symmetric", 19, 3, 20, 3, -2))
sketch9.addConstraint(Sketcher.Constraint("PointOnObject", 0, 3, -2))
sketch9.addConstraint(Sketcher.Constraint("PointOnObject", 3, 3, -1))
sketch9.addConstraint(Sketcher.Constraint("PointOnObject", 12, 3, -1))
sketch9.addConstraint(Sketcher.Constraint("PointOnObject", 18, 3, -2))
sketch9.addConstraint(Sketcher.Constraint("Horizontal", 10, 3, 18, 3))
sketch9.addConstraint(Sketcher.Constraint("Diameter", 0, Q("3.5 mm")))
sketch9.addConstraint(Sketcher.Constraint("Diameter", 12, Q("2.6 mm")))
sketch9.addConstraint(Sketcher.Constraint("DistanceY", -1, 1, 0, 3, Q("16 mm")))
sketch9.addConstraint(Sketcher.Constraint("DistanceX", 1, 3, -1, 1, Q("8 mm")))
sketch9.addConstraint(Sketcher.Constraint("DistanceY", -1, 1, 2, 3, Q("8 mm")))
sketch9.addConstraint(Sketcher.Constraint("DistanceX", 3, 3, -1, 1, Q("16 mm")))
sketch9.addConstraint(Sketcher.Constraint("DistanceY", 19, 3, -1, 1, Q("4 mm")))
sketch9.addConstraint(Sketcher.Constraint("DistanceX", -1, 1, 13, 3, Q("14.064789 mm")))
sketch9.addConstraint(Sketcher.Constraint("DistanceY", -1, 1, 13, 3, Q("24.360928 mm")))
sketch9.addConstraint(Sketcher.Constraint("DistanceX", 8, 3, 12, 3, Q("14.273171 mm")))
sketch9.addConstraint(Sketcher.Constraint("DistanceY", 11, 3, 13, 3, Q("10.504522 mm")))
sketch9.addConstraint(Sketcher.Constraint("DistanceX", 2, 3, -1, 1, Q("13.856406 mm")))
sketch9.addConstraint(Sketcher.Constraint("DistanceX", 19, 3, -1, 1, Q("6.928203 mm")))
pocket2 = doc.addObject("PartDesign::Pocket", "Pocket001")
body.addObject(pocket2)
pocket2.Profile = sketch9
pocket2.Type = "ThroughAll"

sketch10 = doc.addObject("Sketcher::SketchObject", "Sketch009")
body.addObject(sketch10)
sketch10.AttachmentSupport = (doc.XZ_Plane, [""])
sketch10.MapMode = "FlatFace"
sketch10.AttachmentOffset = App.Placement(Vector(0, 0, -4.6), App.Rotation())
sketch10.addGeometry(Part.Circle(Vector(-14.064789, -24.360928, 0), Vector(0, 0, 1), 2.05), False)
sketch10.addGeometry(Part.Circle(Vector(-28.129577, 0, 0), Vector(0, 0, 1), 2.05), False)
sketch10.addGeometry(Part.Circle(Vector(-14.064789, 24.360928, 0), Vector(0, 0, 1), 2.05), False)
sketch10.addGeometry(Part.Circle(Vector(14.064789, 24.360928, 0), Vector(0, 0, 1), 2.05), False)
sketch10.addGeometry(Part.Circle(Vector(28.129577, 0, 0), Vector(0, 0, 1), 2.04), False)
sketch10.addGeometry(Part.Circle(Vector(14.064789, -24.360928, 0), Vector(0, 0, 1), 2.04), False)
sketch10.addConstraint(Sketcher.Constraint("Equal", 0, 1))
sketch10.addConstraint(Sketcher.Constraint("Equal", 1, 2))
sketch10.addConstraint(Sketcher.Constraint("Equal", 2, 3))
sketch10.addConstraint(Sketcher.Constraint("Equal", 4, 5))
sketch10.addConstraint(Sketcher.Constraint("Symmetric", 0, 3, 3, 3, -1, 1))
sketch10.addConstraint(Sketcher.Constraint("Symmetric", 1, 3, 4, 3, -1, 1))
sketch10.addConstraint(Sketcher.Constraint("Symmetric", 2, 3, 5, 3, -1, 1))
sketch10.addConstraint(Sketcher.Constraint("Symmetric", 2, 3, 3, 3, -2))
sketch10.addConstraint(Sketcher.Constraint("PointOnObject", 1, 3, -1))
sketch10.addConstraint(Sketcher.Constraint("Diameter", 0, Q("4.1 mm")))
sketch10.addConstraint(Sketcher.Constraint("Diameter", 4, Q("4.08 mm")))
sketch10.addConstraint(Sketcher.Constraint("DistanceX", 0, 3, -1, 1, Q("14.064789 mm")))
sketch10.addConstraint(Sketcher.Constraint("DistanceY", 0, 3, -1, 1, Q("24.360928 mm")))
sketch10.addConstraint(Sketcher.Constraint("DistanceX", 1, 3, 0, 3, Q("14.064789 mm")))
pocket3 = doc.addObject("PartDesign::Pocket", "Pocket002")
body.addObject(pocket3)
pocket3.Profile = sketch10
pocket3.Length = 1.5
pocket3.Reversed = True

sketch11 = doc.addObject("Sketcher::SketchObject", "Sketch010")
body.addObject(sketch11)
sketch11.AttachmentSupport = (doc.XZ_Plane, [""])
sketch11.MapMode = "FlatFace"
sketch11.addGeometry(Part.LineSegment(Vector(2.1, -1.532971, 0), Vector(2.1, 1.532971, 0)), False)
sketch11.addGeometry(Part.ArcOfCircle(Part.Circle(Vector(0, 0, 0), Vector(0, 0, 1), 2.6), math.radians(36.128927), math.radians(323.871073)), False)
sketch11.addConstraint(Sketcher.Constraint("Coincident", 0, 1, 1, 2))
sketch11.addConstraint(Sketcher.Constraint("Coincident", 1, 1, 0, 2))
sketch11.addConstraint(Sketcher.Constraint("Vertical", 0))
sketch11.addConstraint(Sketcher.Constraint("Coincident", 1, 3, -1, 1))
sketch11.addConstraint(Sketcher.Constraint("Radius", 1, Q("2.6 mm")))
sketch11.addConstraint(Sketcher.Constraint("DistanceX", -1, 1, 0, 1, Q("2.1 mm")))
pocket4 = doc.addObject("PartDesign::Pocket", "Pocket003")
body.addObject(pocket4)
pocket4.Profile = sketch11
pocket4.Type = "ThroughAll"

sketch12 = doc.addObject("Sketcher::SketchObject", "Sketch011")
body.addObject(sketch12)
sketch12.AttachmentSupport = (doc.XZ_Plane, [""])
sketch12.MapMode = "FlatFace"
sketch12.AttachmentOffset = App.Placement(Vector(0, 0, -4.6), App.Rotation())
sketch12.addGeometry(Part.Circle(Vector(-14.064789, -24.360928, 0), Vector(0, 0, 1), 1.5), False)
sketch12.addGeometry(Part.Circle(Vector(14.064789, -24.360928, 0), Vector(0, 0, 1), 1.5), False)
sketch12.addGeometry(Part.Circle(Vector(-14.064789, 24.360928, 0), Vector(0, 0, 1), 1.5), False)
sketch12.addGeometry(Part.Circle(Vector(14.064789, 24.360928, 0), Vector(0, 0, 1), 1.5), False)
sketch12.addGeometry(Part.Circle(Vector(-28.129577, 0, 0), Vector(0, 0, 1), 1.5), False)
sketch12.addGeometry(Part.Circle(Vector(28.129577, 0, 0), Vector(0, 0, 1), 1.5), False)
sketch12.addConstraint(Sketcher.Constraint("Equal", 0, 1))
sketch12.addConstraint(Sketcher.Constraint("Equal", 1, 2))
sketch12.addConstraint(Sketcher.Constraint("Equal", 2, 3))
sketch12.addConstraint(Sketcher.Constraint("Equal", 3, 4))
sketch12.addConstraint(Sketcher.Constraint("Equal", 4, 5))
sketch12.addConstraint(Sketcher.Constraint("Symmetric", 1, 3, 2, 3, -1, 1))
sketch12.addConstraint(Sketcher.Constraint("Symmetric", 0, 3, 3, 3, -1, 1))
sketch12.addConstraint(Sketcher.Constraint("Symmetric", 4, 3, 5, 3, -1, 1))
sketch12.addConstraint(Sketcher.Constraint("Symmetric", 0, 3, 1, 3, -2))
sketch12.addConstraint(Sketcher.Constraint("PointOnObject", 4, 3, -1))
sketch12.addConstraint(Sketcher.Constraint("Diameter", 0, Q("3 mm")))
sketch12.addConstraint(Sketcher.Constraint("DistanceX", 0, 3, -1, 1, Q("14.064789 mm")))
sketch12.addConstraint(Sketcher.Constraint("DistanceY", 0, 3, -1, 1, Q("24.360928 mm")))
sketch12.addConstraint(Sketcher.Constraint("DistanceX", 4, 3, 0, 3, Q("14.064789 mm")))
pocket5 = doc.addObject("PartDesign::Pocket", "Pocket004")
body.addObject(pocket5)
pocket5.Profile = sketch12
pocket5.Type = "ThroughAll"
pocket5.Reversed = True

sketch13 = doc.addObject("Sketcher::SketchObject", "Sketch012")
body.addObject(sketch13)
sketch13.AttachmentSupport = (doc.XZ_Plane, [""])
sketch13.MapMode = "FlatFace"
sketch13.AttachmentOffset = App.Placement(Vector(0, 0, -4.6), App.Rotation())
sketch13.addGeometry(Part.Circle(Vector(-14.064789, -24.360928, 0), Vector(0, 0, 1), 2.5), False)
sketch13.addGeometry(Part.Circle(Vector(14.064789, -24.360928, 0), Vector(0, 0, 1), 2.5), False)
sketch13.addGeometry(Part.Circle(Vector(-14.064789, 24.360928, 0), Vector(0, 0, 1), 2.5), False)
sketch13.addGeometry(Part.Circle(Vector(14.064789, 24.360928, 0), Vector(0, 0, 1), 2.5), False)
sketch13.addGeometry(Part.Circle(Vector(28.129577, 0, 0), Vector(0, 0, 1), 2.5), False)
sketch13.addGeometry(Part.Circle(Vector(-28.129577, 0, 0), Vector(0, 0, 1), 2.5), False)
sketch13.addConstraint(Sketcher.Constraint("Equal", 0, 1))
sketch13.addConstraint(Sketcher.Constraint("Equal", 1, 2))
sketch13.addConstraint(Sketcher.Constraint("Equal", 2, 3))
sketch13.addConstraint(Sketcher.Constraint("Equal", 3, 4))
sketch13.addConstraint(Sketcher.Constraint("Equal", 4, 5))
sketch13.addConstraint(Sketcher.Constraint("Symmetric", 1, 3, 2, 3, -1, 1))
sketch13.addConstraint(Sketcher.Constraint("Symmetric", 0, 3, 3, 3, -1, 1))
sketch13.addConstraint(Sketcher.Constraint("Symmetric", 4, 3, 5, 3, -1, 1))
sketch13.addConstraint(Sketcher.Constraint("Symmetric", 0, 3, 1, 3, -2))
sketch13.addConstraint(Sketcher.Constraint("PointOnObject", 4, 3, -1))
sketch13.addConstraint(Sketcher.Constraint("Diameter", 0, Q("5 mm")))
sketch13.addConstraint(Sketcher.Constraint("DistanceX", 0, 3, -1, 1, Q("14.064789 mm")))
sketch13.addConstraint(Sketcher.Constraint("DistanceY", 0, 3, -1, 1, Q("24.360928 mm")))
sketch13.addConstraint(Sketcher.Constraint("DistanceX", 1, 3, 4, 3, Q("14.064789 mm")))
pocket6 = doc.addObject("PartDesign::Pocket", "Pocket005")
body.addObject(pocket6)
pocket6.Profile = sketch13
pocket6.Length = 1.5
pocket6.Reversed = True

sketch14 = doc.addObject("Sketcher::SketchObject", "Sketch013")
body.addObject(sketch14)
sketch14.AttachmentSupport = (doc.XZ_Plane, [""])
sketch14.MapMode = "FlatFace"
sketch14.AttachmentOffset = App.Placement(Vector(0, 0, -4.6), App.Rotation())
sketch14.addGeometry(Part.LineSegment(Vector(2.2, 1.565248, 0), Vector(2.2, -1.565248, 0)), False)
sketch14.addGeometry(Part.ArcOfCircle(Part.Circle(Vector(0, 0, 0), Vector(0, 0, 1), 2.7), math.radians(35.430945), math.radians(324.569055)), False)
sketch14.addConstraint(Sketcher.Constraint("Coincident", 0, 1, 1, 1))
sketch14.addConstraint(Sketcher.Constraint("Coincident", 1, 2, 0, 2))
sketch14.addConstraint(Sketcher.Constraint("Vertical", 0))
sketch14.addConstraint(Sketcher.Constraint("Coincident", 1, 3, -1, 1))
sketch14.addConstraint(Sketcher.Constraint("Radius", 1, Q("2.7 mm")))
sketch14.addConstraint(Sketcher.Constraint("DistanceX", -1, 1, 0, 1, Q("2.2 mm")))
pocket7 = doc.addObject("PartDesign::Pocket", "Pocket006")
body.addObject(pocket7)
pocket7.Profile = sketch14
pocket7.Type = "ThroughAll"
pocket7.Reversed = True

doc.recompute()
